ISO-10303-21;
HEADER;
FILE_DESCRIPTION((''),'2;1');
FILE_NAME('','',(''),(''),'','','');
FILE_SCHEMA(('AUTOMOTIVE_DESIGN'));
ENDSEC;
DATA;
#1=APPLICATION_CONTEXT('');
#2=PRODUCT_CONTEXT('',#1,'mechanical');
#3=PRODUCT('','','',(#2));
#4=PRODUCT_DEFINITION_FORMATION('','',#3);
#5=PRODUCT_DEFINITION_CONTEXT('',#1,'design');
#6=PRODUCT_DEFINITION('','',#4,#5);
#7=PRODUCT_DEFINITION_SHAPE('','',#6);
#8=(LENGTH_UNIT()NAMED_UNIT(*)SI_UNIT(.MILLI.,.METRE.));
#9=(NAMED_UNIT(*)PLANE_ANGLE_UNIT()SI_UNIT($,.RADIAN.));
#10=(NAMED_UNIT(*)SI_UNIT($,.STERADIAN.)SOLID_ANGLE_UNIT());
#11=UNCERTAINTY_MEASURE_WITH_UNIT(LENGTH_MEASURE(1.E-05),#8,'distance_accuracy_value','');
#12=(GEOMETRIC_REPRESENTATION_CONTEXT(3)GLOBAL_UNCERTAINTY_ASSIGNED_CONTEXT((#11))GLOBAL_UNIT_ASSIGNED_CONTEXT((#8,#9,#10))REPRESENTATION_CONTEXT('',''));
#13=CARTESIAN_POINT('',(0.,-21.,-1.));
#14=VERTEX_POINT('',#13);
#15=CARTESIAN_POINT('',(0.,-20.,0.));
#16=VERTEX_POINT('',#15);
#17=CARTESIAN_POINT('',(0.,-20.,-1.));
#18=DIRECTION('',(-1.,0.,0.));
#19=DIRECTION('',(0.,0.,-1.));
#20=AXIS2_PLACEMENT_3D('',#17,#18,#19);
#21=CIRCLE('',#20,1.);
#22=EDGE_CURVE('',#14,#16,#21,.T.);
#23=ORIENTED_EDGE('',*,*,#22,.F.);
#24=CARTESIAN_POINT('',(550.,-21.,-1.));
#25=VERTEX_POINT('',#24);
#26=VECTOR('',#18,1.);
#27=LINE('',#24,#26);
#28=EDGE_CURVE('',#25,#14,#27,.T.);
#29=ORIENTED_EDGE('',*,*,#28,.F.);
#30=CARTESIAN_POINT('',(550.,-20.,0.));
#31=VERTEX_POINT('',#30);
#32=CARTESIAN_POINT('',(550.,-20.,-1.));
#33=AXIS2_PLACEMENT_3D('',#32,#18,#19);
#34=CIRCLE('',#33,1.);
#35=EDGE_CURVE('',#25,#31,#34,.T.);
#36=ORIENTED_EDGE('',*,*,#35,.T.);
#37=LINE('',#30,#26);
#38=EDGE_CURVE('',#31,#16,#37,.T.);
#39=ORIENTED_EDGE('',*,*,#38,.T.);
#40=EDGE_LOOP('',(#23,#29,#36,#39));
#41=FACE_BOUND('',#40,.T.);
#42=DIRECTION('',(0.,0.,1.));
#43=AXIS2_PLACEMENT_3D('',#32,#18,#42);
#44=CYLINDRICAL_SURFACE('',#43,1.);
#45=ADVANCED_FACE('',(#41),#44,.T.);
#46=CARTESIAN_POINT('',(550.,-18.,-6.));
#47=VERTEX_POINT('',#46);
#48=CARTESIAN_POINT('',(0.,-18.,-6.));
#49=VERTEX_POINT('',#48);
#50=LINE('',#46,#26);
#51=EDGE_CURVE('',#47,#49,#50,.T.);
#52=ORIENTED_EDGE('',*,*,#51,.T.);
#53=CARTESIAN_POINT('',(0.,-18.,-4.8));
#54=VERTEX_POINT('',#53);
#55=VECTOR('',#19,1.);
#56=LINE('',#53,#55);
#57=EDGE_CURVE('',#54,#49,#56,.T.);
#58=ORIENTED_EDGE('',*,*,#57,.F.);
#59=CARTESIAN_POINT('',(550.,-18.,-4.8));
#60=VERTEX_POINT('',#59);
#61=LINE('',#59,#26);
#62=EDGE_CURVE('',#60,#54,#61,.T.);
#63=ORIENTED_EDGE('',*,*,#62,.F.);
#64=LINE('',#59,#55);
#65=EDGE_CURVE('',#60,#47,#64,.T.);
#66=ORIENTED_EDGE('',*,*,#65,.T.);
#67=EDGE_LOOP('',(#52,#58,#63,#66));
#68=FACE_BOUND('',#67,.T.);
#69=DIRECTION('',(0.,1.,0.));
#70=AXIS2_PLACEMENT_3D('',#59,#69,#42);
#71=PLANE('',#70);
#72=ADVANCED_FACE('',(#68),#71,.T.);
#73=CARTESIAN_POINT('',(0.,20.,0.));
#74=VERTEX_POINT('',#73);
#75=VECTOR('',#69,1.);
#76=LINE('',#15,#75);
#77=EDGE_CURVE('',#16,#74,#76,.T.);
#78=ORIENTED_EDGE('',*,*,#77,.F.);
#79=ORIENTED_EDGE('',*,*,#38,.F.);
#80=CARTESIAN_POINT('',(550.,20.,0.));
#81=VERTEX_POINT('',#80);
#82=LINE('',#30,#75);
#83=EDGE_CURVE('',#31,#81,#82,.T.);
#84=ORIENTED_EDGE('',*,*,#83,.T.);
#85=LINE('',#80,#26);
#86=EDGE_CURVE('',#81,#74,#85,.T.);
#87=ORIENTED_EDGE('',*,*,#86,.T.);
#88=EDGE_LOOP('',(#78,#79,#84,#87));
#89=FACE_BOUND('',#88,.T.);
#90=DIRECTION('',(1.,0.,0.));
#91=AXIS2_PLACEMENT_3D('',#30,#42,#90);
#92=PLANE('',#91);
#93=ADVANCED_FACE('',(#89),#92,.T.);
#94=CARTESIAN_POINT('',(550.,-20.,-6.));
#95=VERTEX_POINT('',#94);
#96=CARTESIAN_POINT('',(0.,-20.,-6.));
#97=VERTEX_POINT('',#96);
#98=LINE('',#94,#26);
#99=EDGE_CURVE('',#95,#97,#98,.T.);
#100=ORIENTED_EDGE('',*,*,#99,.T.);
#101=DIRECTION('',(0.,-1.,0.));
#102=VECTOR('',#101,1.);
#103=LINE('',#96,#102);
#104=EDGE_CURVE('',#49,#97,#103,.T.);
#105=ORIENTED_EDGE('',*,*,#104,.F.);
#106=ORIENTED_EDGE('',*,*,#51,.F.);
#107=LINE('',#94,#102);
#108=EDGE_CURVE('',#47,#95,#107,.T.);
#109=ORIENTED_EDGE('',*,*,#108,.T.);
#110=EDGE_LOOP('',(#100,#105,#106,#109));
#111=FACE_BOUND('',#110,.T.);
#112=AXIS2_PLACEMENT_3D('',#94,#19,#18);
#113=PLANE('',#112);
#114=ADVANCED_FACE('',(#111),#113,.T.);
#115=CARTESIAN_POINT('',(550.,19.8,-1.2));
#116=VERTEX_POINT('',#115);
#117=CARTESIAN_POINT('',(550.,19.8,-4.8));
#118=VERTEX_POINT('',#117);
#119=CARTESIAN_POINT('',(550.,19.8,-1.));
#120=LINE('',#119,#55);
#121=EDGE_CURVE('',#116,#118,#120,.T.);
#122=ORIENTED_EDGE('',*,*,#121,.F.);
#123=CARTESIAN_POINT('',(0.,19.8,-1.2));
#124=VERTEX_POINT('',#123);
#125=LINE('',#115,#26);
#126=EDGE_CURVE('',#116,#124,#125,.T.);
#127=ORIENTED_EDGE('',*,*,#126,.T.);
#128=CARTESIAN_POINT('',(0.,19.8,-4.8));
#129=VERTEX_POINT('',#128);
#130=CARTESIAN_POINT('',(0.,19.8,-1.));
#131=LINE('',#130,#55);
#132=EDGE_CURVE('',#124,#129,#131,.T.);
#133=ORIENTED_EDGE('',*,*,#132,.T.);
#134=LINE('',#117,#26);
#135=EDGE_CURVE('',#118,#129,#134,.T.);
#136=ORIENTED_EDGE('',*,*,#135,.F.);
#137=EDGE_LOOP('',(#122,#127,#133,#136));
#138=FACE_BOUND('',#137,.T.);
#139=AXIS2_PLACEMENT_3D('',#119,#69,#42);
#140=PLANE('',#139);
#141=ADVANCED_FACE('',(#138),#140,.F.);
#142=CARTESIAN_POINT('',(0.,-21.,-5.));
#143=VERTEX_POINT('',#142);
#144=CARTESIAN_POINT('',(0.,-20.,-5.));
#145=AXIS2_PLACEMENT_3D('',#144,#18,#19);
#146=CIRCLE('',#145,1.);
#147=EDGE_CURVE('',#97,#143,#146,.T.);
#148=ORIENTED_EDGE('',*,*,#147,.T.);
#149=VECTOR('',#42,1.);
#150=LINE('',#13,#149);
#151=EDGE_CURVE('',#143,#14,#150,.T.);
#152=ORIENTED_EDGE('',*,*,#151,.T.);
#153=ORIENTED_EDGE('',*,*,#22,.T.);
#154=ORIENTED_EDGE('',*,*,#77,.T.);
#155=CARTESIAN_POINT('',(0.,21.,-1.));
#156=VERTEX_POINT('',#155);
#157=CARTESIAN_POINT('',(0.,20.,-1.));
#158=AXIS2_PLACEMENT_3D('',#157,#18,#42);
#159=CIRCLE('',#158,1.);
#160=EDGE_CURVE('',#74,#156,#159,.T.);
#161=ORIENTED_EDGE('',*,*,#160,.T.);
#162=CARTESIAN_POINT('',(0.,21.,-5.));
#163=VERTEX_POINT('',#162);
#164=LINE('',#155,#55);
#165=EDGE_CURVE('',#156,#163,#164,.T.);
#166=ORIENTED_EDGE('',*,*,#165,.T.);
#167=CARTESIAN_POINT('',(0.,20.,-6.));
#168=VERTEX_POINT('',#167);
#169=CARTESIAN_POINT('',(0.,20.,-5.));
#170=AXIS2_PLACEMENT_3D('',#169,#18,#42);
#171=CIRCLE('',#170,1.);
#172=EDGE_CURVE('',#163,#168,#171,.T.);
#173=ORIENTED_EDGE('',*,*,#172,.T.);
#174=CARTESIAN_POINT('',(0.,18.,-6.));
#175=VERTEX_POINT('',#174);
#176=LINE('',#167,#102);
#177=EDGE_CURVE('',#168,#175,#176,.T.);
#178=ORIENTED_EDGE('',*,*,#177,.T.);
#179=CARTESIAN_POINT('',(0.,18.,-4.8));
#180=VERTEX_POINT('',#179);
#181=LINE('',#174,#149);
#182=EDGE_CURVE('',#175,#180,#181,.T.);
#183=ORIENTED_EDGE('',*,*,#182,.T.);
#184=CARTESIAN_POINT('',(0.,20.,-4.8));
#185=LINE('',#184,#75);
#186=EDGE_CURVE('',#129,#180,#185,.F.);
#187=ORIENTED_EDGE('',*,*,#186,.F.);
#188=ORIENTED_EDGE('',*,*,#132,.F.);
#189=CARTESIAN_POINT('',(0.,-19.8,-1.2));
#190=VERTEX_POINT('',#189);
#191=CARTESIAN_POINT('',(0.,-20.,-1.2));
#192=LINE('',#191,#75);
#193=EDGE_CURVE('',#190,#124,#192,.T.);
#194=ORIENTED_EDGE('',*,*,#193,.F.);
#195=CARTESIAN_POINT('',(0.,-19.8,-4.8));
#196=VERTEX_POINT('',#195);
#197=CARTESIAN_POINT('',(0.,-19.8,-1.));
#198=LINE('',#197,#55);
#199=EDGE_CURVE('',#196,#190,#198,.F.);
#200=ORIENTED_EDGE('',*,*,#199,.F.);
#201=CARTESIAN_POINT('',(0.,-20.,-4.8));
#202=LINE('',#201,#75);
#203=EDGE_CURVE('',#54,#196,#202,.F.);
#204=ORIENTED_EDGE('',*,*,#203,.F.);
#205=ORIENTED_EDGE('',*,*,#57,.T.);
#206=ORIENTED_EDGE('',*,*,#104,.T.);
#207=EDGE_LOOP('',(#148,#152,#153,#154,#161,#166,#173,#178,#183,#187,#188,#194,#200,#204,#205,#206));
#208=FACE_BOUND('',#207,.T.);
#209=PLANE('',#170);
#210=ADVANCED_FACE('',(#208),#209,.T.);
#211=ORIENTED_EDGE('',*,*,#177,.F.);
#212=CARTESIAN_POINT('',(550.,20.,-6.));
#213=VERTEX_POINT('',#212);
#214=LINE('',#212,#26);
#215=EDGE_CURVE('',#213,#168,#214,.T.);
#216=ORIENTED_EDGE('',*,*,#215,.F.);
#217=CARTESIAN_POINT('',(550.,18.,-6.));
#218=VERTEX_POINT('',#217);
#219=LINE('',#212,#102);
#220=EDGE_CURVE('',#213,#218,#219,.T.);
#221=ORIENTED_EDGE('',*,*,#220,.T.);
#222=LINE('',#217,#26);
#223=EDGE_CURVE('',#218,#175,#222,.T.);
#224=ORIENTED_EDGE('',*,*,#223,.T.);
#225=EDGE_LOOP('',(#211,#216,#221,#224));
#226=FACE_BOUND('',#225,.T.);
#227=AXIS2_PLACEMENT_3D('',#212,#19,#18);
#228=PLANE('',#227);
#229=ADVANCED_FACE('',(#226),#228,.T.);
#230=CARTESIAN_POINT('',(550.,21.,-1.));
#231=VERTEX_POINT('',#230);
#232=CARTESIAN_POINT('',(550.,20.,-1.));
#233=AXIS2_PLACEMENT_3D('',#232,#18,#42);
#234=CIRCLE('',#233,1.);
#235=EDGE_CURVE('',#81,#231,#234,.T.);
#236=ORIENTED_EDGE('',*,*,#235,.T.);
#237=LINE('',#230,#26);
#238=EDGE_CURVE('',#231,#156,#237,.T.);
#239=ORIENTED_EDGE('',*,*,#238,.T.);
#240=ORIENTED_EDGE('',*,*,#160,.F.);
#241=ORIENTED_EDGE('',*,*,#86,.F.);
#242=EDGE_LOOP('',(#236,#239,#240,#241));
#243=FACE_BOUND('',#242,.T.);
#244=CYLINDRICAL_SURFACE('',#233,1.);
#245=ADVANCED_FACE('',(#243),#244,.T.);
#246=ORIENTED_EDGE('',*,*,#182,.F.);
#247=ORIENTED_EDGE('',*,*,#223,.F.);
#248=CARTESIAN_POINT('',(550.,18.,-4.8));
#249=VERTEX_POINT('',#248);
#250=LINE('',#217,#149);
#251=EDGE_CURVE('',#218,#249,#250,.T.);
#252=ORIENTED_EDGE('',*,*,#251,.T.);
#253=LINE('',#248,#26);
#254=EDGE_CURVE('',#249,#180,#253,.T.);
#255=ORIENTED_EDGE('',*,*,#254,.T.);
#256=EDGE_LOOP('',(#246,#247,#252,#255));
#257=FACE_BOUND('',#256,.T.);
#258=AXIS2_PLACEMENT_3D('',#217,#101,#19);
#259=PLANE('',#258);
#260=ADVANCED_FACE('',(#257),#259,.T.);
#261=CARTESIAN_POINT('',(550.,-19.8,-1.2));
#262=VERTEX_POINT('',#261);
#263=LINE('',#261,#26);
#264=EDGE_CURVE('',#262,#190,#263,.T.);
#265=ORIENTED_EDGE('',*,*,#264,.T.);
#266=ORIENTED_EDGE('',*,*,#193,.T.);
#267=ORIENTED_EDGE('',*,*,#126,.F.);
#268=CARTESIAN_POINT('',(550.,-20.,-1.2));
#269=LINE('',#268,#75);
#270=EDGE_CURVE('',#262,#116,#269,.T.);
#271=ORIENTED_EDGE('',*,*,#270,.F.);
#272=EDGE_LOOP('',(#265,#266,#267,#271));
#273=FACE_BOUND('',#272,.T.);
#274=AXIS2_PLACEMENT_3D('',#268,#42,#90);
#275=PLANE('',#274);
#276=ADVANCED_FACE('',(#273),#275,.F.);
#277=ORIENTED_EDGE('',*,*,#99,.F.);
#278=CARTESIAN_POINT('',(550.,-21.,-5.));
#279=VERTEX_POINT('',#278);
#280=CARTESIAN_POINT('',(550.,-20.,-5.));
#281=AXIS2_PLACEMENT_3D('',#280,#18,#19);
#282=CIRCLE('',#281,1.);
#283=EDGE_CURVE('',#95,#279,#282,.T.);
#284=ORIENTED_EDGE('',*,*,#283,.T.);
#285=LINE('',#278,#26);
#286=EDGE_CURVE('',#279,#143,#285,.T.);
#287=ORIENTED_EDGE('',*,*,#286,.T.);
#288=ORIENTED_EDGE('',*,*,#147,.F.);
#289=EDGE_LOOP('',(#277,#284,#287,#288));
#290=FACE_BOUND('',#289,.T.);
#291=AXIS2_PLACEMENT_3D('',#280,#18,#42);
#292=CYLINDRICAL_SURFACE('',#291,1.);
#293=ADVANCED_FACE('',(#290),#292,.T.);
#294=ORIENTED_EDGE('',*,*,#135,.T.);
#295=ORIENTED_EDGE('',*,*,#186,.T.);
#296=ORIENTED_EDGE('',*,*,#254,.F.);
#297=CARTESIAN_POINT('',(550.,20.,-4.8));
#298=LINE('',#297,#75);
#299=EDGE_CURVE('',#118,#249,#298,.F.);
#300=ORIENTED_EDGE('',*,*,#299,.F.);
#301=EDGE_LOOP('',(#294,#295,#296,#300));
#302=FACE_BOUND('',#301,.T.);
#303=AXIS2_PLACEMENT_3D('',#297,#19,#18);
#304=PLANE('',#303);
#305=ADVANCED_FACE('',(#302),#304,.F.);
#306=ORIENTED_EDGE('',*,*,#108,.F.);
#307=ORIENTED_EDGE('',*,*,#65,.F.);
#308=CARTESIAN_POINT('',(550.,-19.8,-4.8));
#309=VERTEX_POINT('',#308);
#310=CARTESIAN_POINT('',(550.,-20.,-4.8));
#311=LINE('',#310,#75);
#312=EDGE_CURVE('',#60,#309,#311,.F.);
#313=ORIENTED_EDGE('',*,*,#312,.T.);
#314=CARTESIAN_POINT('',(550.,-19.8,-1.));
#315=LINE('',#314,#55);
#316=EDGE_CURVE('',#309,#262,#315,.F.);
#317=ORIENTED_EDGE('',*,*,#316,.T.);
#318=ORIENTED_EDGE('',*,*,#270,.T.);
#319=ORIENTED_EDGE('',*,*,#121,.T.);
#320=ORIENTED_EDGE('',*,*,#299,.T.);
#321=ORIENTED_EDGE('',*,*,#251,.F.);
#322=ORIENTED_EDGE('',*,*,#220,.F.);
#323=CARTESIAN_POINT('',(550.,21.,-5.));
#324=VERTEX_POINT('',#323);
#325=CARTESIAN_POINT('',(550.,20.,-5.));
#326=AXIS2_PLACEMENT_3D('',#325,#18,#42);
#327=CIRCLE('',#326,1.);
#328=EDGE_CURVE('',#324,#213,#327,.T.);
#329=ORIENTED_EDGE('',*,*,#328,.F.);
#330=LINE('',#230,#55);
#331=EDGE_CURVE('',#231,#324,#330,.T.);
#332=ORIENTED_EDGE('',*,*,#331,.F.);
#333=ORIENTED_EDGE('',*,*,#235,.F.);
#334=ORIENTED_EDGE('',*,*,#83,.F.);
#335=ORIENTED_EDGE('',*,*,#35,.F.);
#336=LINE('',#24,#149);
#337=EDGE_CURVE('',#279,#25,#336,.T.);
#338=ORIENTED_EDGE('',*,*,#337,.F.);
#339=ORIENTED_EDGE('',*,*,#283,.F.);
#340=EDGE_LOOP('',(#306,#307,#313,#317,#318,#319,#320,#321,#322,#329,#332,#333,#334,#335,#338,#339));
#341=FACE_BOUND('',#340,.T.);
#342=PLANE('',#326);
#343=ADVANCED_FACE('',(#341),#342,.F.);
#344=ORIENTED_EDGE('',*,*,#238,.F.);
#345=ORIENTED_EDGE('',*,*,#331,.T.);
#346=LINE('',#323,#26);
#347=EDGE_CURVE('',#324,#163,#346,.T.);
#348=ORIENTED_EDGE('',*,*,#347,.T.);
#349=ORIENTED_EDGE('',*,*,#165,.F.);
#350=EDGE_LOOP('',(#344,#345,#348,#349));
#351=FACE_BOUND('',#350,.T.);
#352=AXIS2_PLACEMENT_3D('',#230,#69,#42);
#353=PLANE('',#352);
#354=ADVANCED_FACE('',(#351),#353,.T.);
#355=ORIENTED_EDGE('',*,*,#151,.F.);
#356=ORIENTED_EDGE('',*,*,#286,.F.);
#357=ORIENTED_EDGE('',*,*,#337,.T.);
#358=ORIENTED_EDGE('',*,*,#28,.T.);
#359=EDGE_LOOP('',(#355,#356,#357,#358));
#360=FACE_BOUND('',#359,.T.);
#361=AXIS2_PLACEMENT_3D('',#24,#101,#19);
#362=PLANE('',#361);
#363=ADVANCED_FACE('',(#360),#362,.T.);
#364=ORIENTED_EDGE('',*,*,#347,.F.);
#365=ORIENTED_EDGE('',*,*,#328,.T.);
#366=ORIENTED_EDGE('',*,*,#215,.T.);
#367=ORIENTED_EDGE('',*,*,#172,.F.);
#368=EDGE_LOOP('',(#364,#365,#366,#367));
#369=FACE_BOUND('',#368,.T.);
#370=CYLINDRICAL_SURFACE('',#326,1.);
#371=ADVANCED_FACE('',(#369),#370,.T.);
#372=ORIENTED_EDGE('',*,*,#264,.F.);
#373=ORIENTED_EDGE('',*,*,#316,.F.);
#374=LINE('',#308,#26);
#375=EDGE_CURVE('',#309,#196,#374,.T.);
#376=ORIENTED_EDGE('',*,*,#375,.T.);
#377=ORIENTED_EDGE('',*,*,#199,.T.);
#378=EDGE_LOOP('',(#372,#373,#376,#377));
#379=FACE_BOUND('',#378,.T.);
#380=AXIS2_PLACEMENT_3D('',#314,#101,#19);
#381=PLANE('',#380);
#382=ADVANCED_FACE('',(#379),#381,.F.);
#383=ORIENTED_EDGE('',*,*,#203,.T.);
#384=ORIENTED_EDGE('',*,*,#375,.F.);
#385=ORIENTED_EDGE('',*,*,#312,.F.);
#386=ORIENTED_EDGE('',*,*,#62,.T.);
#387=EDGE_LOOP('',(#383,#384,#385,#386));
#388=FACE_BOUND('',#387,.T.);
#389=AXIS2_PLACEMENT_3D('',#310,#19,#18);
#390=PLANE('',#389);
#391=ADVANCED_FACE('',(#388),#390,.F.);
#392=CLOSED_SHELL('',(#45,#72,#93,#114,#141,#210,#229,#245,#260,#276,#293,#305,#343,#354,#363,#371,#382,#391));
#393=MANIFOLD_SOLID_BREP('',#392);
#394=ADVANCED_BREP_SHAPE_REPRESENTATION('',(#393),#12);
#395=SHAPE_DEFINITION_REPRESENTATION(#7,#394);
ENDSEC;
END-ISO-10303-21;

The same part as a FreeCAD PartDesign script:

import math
import FreeCAD as App
import Part
import Sketcher
from FreeCAD import Vector
Q = App.Units.Quantity

doc = App.newDocument("Part")
params = doc.addObject("Spreadsheet::Sheet", "Params")
for row, (alias, value) in enumerate([
    ("sketch1_radius", "1 mm"),
    ("sketch1_width", "2 mm"),
    ("sketch1_width2", "40 mm"),
    ("sketch1_height", "4 mm"),
    ("sketch1_width3", "1.8 mm"),
    ("pad1_length", "550 mm"),
], start=1):
    params.set(f"A{row}", alias)
    params.set(f"B{row}", "=" + value)
    params.setAlias(f"B{row}", alias)

body = doc.addObject("PartDesign::Body", "Body")

# Sketch on YZ plane
sketch1 = body.newObject("Sketcher::SketchObject", "Sketch")
sketch1.AttachmentSupport = (doc.getObject("YZ_Plane"), [""])
sketch1.MapMode = "FlatFace"
sketch1.addGeometry([
    Part.LineSegment(Vector(-20, -6, 0), Vector(-18, -6, 0)),  # 0
    Part.LineSegment(Vector(-18, -6, 0), Vector(-18, -4.8, 0)),  # 1
    Part.LineSegment(Vector(-18, -4.8, 0), Vector(-19.8, -4.8, 0)),  # 2
    Part.LineSegment(Vector(-19.8, -4.8, 0), Vector(-19.8, -1.2, 0)),  # 3
    Part.LineSegment(Vector(-19.8, -1.2, 0), Vector(19.8, -1.2, 0)),  # 4
    Part.LineSegment(Vector(19.8, -1.2, 0), Vector(19.8, -4.8, 0)),  # 5
    Part.LineSegment(Vector(19.8, -4.8, 0), Vector(18, -4.8, 0)),  # 6
    Part.LineSegment(Vector(18, -4.8, 0), Vector(18, -6, 0)),  # 7
    Part.LineSegment(Vector(18, -6, 0), Vector(20, -6, 0)),  # 8
    Part.ArcOfCircle(Part.Circle(Vector(20, -5, 0), Vector(0, 0, 1), 1), math.radians(-90), math.radians(0)),  # 9
    Part.LineSegment(Vector(21, -5, 0), Vector(21, -1, 0)),  # 10
    Part.ArcOfCircle(Part.Circle(Vector(20, -1, 0), Vector(0, 0, 1), 1), math.radians(0), math.radians(90)),  # 11
    Part.LineSegment(Vector(20, 0, 0), Vector(-20, 0, 0)),  # 12
    Part.ArcOfCircle(Part.Circle(Vector(-20, -1, 0), Vector(0, 0, 1), 1), math.radians(90), math.radians(180)),  # 13
    Part.LineSegment(Vector(-21, -1, 0), Vector(-21, -5, 0)),  # 14
    Part.ArcOfCircle(Part.Circle(Vector(-20, -5, 0), Vector(0, 0, 1), 1), math.radians(-180), math.radians(-90)),  # 15
], False)
sketch1.addConstraint([
    Sketcher.Constraint("Coincident", 0, 2, 1, 1),
    Sketcher.Constraint("Coincident", 1, 2, 2, 1),
    Sketcher.Constraint("Coincident", 2, 2, 3, 1),
    Sketcher.Constraint("Coincident", 3, 2, 4, 1),
    Sketcher.Constraint("Coincident", 4, 2, 5, 1),
    Sketcher.Constraint("Coincident", 5, 2, 6, 1),
    Sketcher.Constraint("Coincident", 6, 2, 7, 1),
    Sketcher.Constraint("Coincident", 7, 2, 8, 1),
    Sketcher.Constraint("Tangent", 8, 2, 9, 1),
    Sketcher.Constraint("Tangent", 9, 2, 10, 1),
    Sketcher.Constraint("Tangent", 10, 2, 11, 1),
    Sketcher.Constraint("Tangent", 11, 2, 12, 1),
    Sketcher.Constraint("Tangent", 12, 2, 13, 1),
    Sketcher.Constraint("Tangent", 13, 2, 14, 1),
    Sketcher.Constraint("Tangent", 14, 2, 15, 1),
    Sketcher.Constraint("Tangent", 15, 2, 0, 1),
    Sketcher.Constraint("Horizontal", 0),
    Sketcher.Constraint("Vertical", 1),
    Sketcher.Constraint("Horizontal", 2),
    Sketcher.Constraint("Vertical", 3),
    Sketcher.Constraint("Horizontal", 4),
    Sketcher.Constraint("Vertical", 5),
    Sketcher.Constraint("Horizontal", 6),
    Sketcher.Constraint("Vertical", 7),
    Sketcher.Constraint("Horizontal", 8),
    Sketcher.Constraint("Vertical", 10),
    Sketcher.Constraint("Horizontal", 12),
    Sketcher.Constraint("Vertical", 14),
    Sketcher.Constraint("Equal", 9, 11),
    Sketcher.Constraint("Equal", 11, 13),
    Sketcher.Constraint("Equal", 13, 15),
    Sketcher.Constraint("Symmetric", 11, 2, 12, 2, -1, 1),
    Sketcher.Constraint("Symmetric", 2, 2, 5, 2, -2),
    Sketcher.Constraint("Symmetric", 0, 2, 7, 2, -2),
    Sketcher.Constraint("Radius", 9, Q("1 mm")),
    Sketcher.Constraint("DistanceX", 0, 1, 0, 2, Q("2 mm")),
    Sketcher.Constraint("DistanceX", 12, 2, 12, 1, Q("40 mm")),
    Sketcher.Constraint("DistanceY", 10, 1, 10, 2, Q("4 mm")),
    Sketcher.Constraint("DistanceX", 2, 2, 2, 1, Q("1.8 mm")),
    Sketcher.Constraint("DistanceY", 1, 1, 1, 2, Q("1.2 mm")),
    Sketcher.Constraint("DistanceY", 3, 1, 3, 2, Q("3.6 mm")),
])
sketch1.setExpression("Constraints[34]", "Params.sketch1_radius")
sketch1.setExpression("Constraints[35]", "Params.sketch1_width")
sketch1.setExpression("Constraints[36]", "Params.sketch1_width2")
sketch1.setExpression("Constraints[37]", "Params.sketch1_height")
sketch1.setExpression("Constraints[38]", "Params.sketch1_width3")
pad1 = body.newObject("PartDesign::Pad", "Pad")
pad1.Profile = sketch1
pad1.setExpression("Length", "Params.pad1_length")

doc.recompute()
